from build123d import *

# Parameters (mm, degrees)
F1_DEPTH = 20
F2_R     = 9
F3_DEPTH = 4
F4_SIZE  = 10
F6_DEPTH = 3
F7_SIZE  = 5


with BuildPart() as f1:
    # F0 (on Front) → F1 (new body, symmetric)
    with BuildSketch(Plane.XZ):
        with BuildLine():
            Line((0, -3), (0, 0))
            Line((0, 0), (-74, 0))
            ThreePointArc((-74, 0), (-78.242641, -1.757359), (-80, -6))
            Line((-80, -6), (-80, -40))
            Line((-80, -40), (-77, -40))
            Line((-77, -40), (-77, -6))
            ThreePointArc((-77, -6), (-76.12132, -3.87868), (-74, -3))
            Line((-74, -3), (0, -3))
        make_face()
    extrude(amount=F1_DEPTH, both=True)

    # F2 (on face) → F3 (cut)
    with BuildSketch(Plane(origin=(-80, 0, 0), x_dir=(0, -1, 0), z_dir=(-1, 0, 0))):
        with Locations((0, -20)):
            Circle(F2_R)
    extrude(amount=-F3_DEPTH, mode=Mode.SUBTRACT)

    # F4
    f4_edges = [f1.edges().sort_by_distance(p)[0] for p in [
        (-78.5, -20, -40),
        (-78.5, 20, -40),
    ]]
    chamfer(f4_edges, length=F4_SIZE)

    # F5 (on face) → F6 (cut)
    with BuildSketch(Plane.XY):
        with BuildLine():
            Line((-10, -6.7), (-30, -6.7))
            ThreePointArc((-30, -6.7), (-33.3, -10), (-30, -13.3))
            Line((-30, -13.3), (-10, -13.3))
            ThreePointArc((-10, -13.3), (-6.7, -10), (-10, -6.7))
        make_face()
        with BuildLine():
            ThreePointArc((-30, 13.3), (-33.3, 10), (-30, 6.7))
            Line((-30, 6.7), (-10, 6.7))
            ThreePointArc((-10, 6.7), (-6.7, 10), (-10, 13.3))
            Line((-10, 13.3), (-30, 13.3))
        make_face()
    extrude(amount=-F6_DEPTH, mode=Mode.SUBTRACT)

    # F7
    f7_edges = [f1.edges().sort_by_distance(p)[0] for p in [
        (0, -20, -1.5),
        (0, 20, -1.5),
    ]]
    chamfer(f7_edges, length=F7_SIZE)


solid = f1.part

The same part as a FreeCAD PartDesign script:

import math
import FreeCAD as App
import Part
import Sketcher

V = App.Vector


def edges_at(feature, points):
    """Names of the edges that pass closest to the given points."""
    edges = feature.Shape.Edges
    near = lambda p: min(range(len(edges)), key=lambda i: edges[i].distToShape(Part.Vertex(*p))[0])
    return sorted({f"Edge{near(p) + 1}" for p in points})

doc = App.newDocument("Part")
params = doc.addObject("Spreadsheet::Sheet", "Params")
for row, (alias, value) in enumerate([
    ("sketch1_radius", "5.999999 mm"),
    ("sketch1_radius2", "3.000001 mm"),
    ("sketch1_width", "74 mm"),
    ("sketch1_height", "34 mm"),
    ("pad1_length", "40 mm"),
    ("sketch2_diameter", "18 mm"),
    ("pocket1_length", "4 mm"),
    ("chamfer_size", "10 mm"),
    ("sketch3_radius", "3.3 mm"),
    ("sketch3_width", "20 mm"),
    ("pocket2_length", "3 mm"),
    ("chamfer2_size", "5 mm"),
], start=1):
    params.set(f"A{row}", alias)
    params.set(f"B{row}", "=" + value)
    params.setAlias(f"B{row}", alias)

body = doc.addObject("PartDesign::Body", "Body")

# Sketch on XZ plane
sketch1 = doc.addObject("Sketcher::SketchObject", "Sketch")
body.addObject(sketch1)
sketch1.AttachmentSupport = (doc.XZ_Plane, [""])
sketch1.MapMode = "FlatFace"
sketch1.addGeometry([
    Part.LineSegment(V(0, -3, 0), V(0, 0, 0)),  # 0
    Part.LineSegment(V(0, 0, 0), V(-74, 0, 0)),  # 1
    Part.ArcOfCircle(Part.Circle(V(-74, -6, 0), V(0, 0, 1), 6), math.radians(90), math.radians(180)),  # 2
    Part.LineSegment(V(-80, -6, 0), V(-80, -40, 0)),  # 3
    Part.LineSegment(V(-80, -40, 0), V(-77, -40, 0)),  # 4
    Part.LineSegment(V(-77, -40, 0), V(-77, -6, 0)),  # 5
    Part.ArcOfCircle(Part.Circle(V(-74, -6, 0), V(0, 0, 1), 3), math.radians(90), math.radians(180)),  # 6
    Part.LineSegment(V(-74, -3, 0), V(0, -3, 0)),  # 7
], False)
sketch1.addConstraint([
    Sketcher.Constraint("Coincident", 0, 2, 1, 1),
    Sketcher.Constraint("Tangent", 1, 2, 2, 1),
    Sketcher.Constraint("Tangent", 2, 2, 3, 1),
    Sketcher.Constraint("Coincident", 3, 2, 4, 1),
    Sketcher.Constraint("Coincident", 4, 2, 5, 1),
    Sketcher.Constraint("Tangent", 5, 2, 6, 2),
    Sketcher.Constraint("Tangent", 6, 1, 7, 1),
    Sketcher.Constraint("Coincident", 7, 2, 0, 1),
    Sketcher.Constraint("Vertical", 0),
    Sketcher.Constraint("Horizontal", 1),
    Sketcher.Constraint("Vertical", 3),
    Sketcher.Constraint("Horizontal", 4),
    Sketcher.Constraint("Vertical", 5),
    Sketcher.Constraint("Horizontal", 7),
    Sketcher.Constraint("Coincident", 0, 2, -1, 1),
    Sketcher.Constraint("Coincident", 6, 3, 2, 3),
    Sketcher.Constraint("Radius", 2, 5.999999),
    Sketcher.Constraint("Radius", 6, 3.000001),
    Sketcher.Constraint("DistanceX", 1, 2, 1, 1, 74.0),
    Sketcher.Constraint("DistanceY", 3, 2, 3, 1, 34.0),
])
sketch1.setExpression("Constraints[16]", "Params.sketch1_radius")
sketch1.setExpression("Constraints[17]", "Params.sketch1_radius2")
sketch1.setExpression("Constraints[18]", "Params.sketch1_width")
sketch1.setExpression("Constraints[19]", "Params.sketch1_height")
pad1 = doc.addObject("PartDesign::Pad", "Pad")
body.addObject(pad1)
pad1.Profile = sketch1
pad1.setExpression("Length", "Params.pad1_length")
pad1.Midplane = True

# Sketch on YZ plane
sketch2 = doc.addObject("Sketcher::SketchObject", "Sketch001")
body.addObject(sketch2)
sketch2.AttachmentSupport = (doc.YZ_Plane, [""])
sketch2.MapMode = "FlatFace"
sketch2.AttachmentOffset = App.Placement(V(0, 0, -80), App.Rotation())
sketch2.addGeometry(Part.Circle(V(0, -20, 0), V(0, 0, 1), 9), False)
sketch2.addConstraint([
    Sketcher.Constraint("PointOnObject", 0, 3, -2),
    Sketcher.Constraint("Diameter", 0, 18.0),
    Sketcher.Constraint("DistanceY", 0, 3, -1, 1, 20.0),
])
sketch2.setExpression("Constraints[1]", "Params.sketch2_diameter")
pocket1 = doc.addObject("PartDesign::Pocket", "Pocket")
body.addObject(pocket1)
pocket1.Profile = sketch2
pocket1.setExpression("Length", "Params.pocket1_length")
pocket1.Reversed = True
doc.recompute()

chamfer = doc.addObject("PartDesign::Chamfer", "Chamfer")
body.addObject(chamfer)
chamfer.Base = (pocket1, edges_at(pocket1, [(-78.5, -20, -40), (-78.5, 20, -40)]))
chamfer.setExpression("Size", "Params.chamfer_size")

# Sketch on XY plane
sketch3 = doc.addObject("Sketcher::SketchObject", "Sketch002")
body.addObject(sketch3)
sketch3.AttachmentSupport = (doc.XY_Plane, [""])
sketch3.MapMode = "FlatFace"
sketch3.addGeometry([
    Part.LineSegment(V(-10, -6.7, 0), V(-30, -6.7, 0)),  # 0
    Part.ArcOfCircle(Part.Circle(V(-30, -10, 0), V(0, 0, 1), 3.3), math.radians(90), math.radians(270)),  # 1
    Part.LineSegment(V(-30, -13.3, 0), V(-10, -13.3, 0)),  # 2
    Part.ArcOfCircle(Part.Circle(V(-10, -10, 0), V(0, 0, 1), 3.3), math.radians(-90), math.radians(90)),  # 3
    Part.ArcOfCircle(Part.Circle(V(-30, 10, 0), V(0, 0, 1), 3.3), math.radians(90), math.radians(270)),  # 4
    Part.LineSegment(V(-30, 6.7, 0), V(-10, 6.7, 0)),  # 5
    Part.ArcOfCircle(Part.Circle(V(-10, 10, 0), V(0, 0, 1), 3.3), math.radians(-90), math.radians(90)),  # 6
    Part.LineSegment(V(-10, 13.3, 0), V(-30, 13.3, 0)),  # 7
], False)
sketch3.addConstraint([
    Sketcher.Constraint("Tangent", 0, 2, 1, 1),
    Sketcher.Constraint("Tangent", 1, 2, 2, 1),
    Sketcher.Constraint("Tangent", 2, 2, 3, 1),
    Sketcher.Constraint("Tangent", 3, 2, 0, 1),
    Sketcher.Constraint("Tangent", 4, 2, 5, 1),
    Sketcher.Constraint("Tangent", 5, 2, 6, 1),
    Sketcher.Constraint("Tangent", 6, 2, 7, 1),
    Sketcher.Constraint("Tangent", 7, 2, 4, 1),
    Sketcher.Constraint("Horizontal", 0),
    Sketcher.Constraint("Horizontal", 2),
    Sketcher.Constraint("Horizontal", 5),
    Sketcher.Constraint("Horizontal", 7),
    Sketcher.Constraint("Equal", 3, 4),
    Sketcher.Constraint("Symmetric", 1, 3, 4, 3, -1),
    Sketcher.Constraint("Vertical", 3, 3, 6, 3),
    Sketcher.Constraint("Radius", 1, 3.3),
    Sketcher.Constraint("DistanceX", 0, 2, 0, 1, 20.0),
    Sketcher.Constraint("DistanceX", 1, 3, -1, 1, 30.0),
    Sketcher.Constraint("DistanceY", 1, 3, -1, 1, 10.0),
])
sketch3.setExpression("Constraints[15]", "Params.sketch3_radius")
sketch3.setExpression("Constraints[16]", "Params.sketch3_width")
pocket2 = doc.addObject("PartDesign::Pocket", "Pocket001")
body.addObject(pocket2)
pocket2.Profile = sketch3
pocket2.setExpression("Length", "Params.pocket2_length")
doc.recompute()

chamfer2 = doc.addObject("PartDesign::Chamfer", "Chamfer001")
body.addObject(chamfer2)
chamfer2.Base = (pocket2, edges_at(pocket2, [(0, -20, -1.5), (0, 20, -1.5)]))
chamfer2.setExpression("Size", "Params.chamfer2_size")

doc.recompute()
